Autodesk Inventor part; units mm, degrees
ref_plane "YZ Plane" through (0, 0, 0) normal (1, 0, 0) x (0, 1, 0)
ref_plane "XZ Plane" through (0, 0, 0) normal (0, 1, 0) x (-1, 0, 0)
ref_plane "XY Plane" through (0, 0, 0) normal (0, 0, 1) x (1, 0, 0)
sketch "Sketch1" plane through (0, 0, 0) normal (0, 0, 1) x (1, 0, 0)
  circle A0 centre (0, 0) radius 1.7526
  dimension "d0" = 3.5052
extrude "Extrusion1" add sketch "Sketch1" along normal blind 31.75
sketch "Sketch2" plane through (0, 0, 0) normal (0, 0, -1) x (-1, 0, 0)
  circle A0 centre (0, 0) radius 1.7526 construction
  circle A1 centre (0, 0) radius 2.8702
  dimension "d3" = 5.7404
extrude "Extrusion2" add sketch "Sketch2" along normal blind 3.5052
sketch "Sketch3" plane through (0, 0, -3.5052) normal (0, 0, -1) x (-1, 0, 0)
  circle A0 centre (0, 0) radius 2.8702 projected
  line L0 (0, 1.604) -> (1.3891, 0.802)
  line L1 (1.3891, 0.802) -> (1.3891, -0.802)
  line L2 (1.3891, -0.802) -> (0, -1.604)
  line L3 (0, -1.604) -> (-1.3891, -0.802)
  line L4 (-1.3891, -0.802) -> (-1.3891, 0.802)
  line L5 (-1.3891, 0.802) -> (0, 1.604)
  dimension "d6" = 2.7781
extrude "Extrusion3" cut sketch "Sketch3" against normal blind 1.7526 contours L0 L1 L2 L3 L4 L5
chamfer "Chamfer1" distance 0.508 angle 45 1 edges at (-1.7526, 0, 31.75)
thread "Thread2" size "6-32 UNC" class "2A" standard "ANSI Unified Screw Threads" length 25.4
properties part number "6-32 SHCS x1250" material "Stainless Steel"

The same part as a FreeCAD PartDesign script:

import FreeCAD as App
import Part
import Sketcher

V = App.Vector
Q = App.Units.Quantity


def edges_at(feature, points):
    """Names of the edges that pass closest to the given points."""
    edges = feature.Shape.Edges
    near = lambda p: min(range(len(edges)), key=lambda i: edges[i].distToShape(Part.Vertex(*p))[0])
    return sorted({f"Edge{near(p) + 1}" for p in points})

doc = App.newDocument("Part")
body = doc.addObject("PartDesign::Body", "Body")

# Sketch on XY plane
sketch1 = body.newObject("Sketcher::SketchObject", "Sketch")
sketch1.AttachmentSupport = (doc.getObject("XY_Plane"), [""])
sketch1.MapMode = "FlatFace"
sketch1.addGeometry(Part.Circle(V(0, 0, 0), V(0, 0, 1), 1.8), False)
sketch1.addConstraint([
    Sketcher.Constraint("Coincident", 0, 3, -1, 1),
    Sketcher.Constraint("Diameter", 0, Q("0.138 in")),
])
pad1 = body.newObject("PartDesign::Pad", "Pad")
pad1.Profile = sketch1
pad1.Length = Q("1.25 in")

# Sketch on XY plane
sketch2 = body.newObject("Sketcher::SketchObject", "Sketch001")
sketch2.AttachmentSupport = (doc.getObject("XY_Plane"), [""])
sketch2.MapMode = "FlatFace"
sketch2.addGeometry(Part.Circle(V(0, 0, 0), V(0, 0, 1), 2.9), False)
sketch2.addConstraint([
    Sketcher.Constraint("Coincident", 0, 3, -1, 1),
    Sketcher.Constraint("Diameter", 0, Q("0.226 in")),
])
pad2 = body.newObject("PartDesign::Pad", "Pad001")
pad2.Profile = sketch2
pad2.Length = Q("0.138 in")
pad2.Reversed = True

# Sketch on XY plane
sketch3 = body.newObject("Sketcher::SketchObject", "Sketch002")
sketch3.AttachmentSupport = (doc.getObject("XY_Plane"), [""])
sketch3.MapMode = "FlatFace"
sketch3.AttachmentOffset = App.Placement(V(0, 0, -0.138 * 25.4), App.Rotation())
sketch3.addGeometry([
    Part.LineSegment(V(-1.4, 0.8, 0), V(0, 1.6, 0)),  # 0
    Part.LineSegment(V(0, 1.6, 0), V(1.4, 0.8, 0)),  # 1
    Part.LineSegment(V(1.4, 0.8, 0), V(1.4, -0.8, 0)),  # 2
    Part.LineSegment(V(1.4, -0.8, 0), V(0, -1.6, 0)),  # 3
    Part.LineSegment(V(0, -1.6, 0), V(-1.4, -0.8, 0)),  # 4
    Part.LineSegment(V(-1.4, -0.8, 0), V(-1.4, 0.8, 0)),  # 5
], False)
sketch3.addConstraint([
    Sketcher.Constraint("Coincident", 0, 2, 1, 1),
    Sketcher.Constraint("Coincident", 1, 2, 2, 1),
    Sketcher.Constraint("Coincident", 2, 2, 3, 1),
    Sketcher.Constraint("Coincident", 3, 2, 4, 1),
    Sketcher.Constraint("Coincident", 4, 2, 5, 1),
    Sketcher.Constraint("Coincident", 5, 2, 0, 1),
    Sketcher.Constraint("Vertical", 2),
    Sketcher.Constraint("Vertical", 5),
    Sketcher.Constraint("Symmetric", 0, 2, 3, 2, -1, 1),
    Sketcher.Constraint("Symmetric", 1, 2, 4, 2, -1, 1),
    Sketcher.Constraint("PointOnObject", 0, 2, -2),
    Sketcher.Constraint("Parallel", 0, 3),
    Sketcher.Constraint("Horizontal", 2, 2, 4, 2),
    Sketcher.Constraint("Angle", 0, Q("30 deg")),
    Sketcher.Constraint("DistanceX", 4, 2, 2, 2, Q("0.109378 in")),
    Sketcher.Constraint("DistanceY", 2, 2, 2, 1, Q("1.604 mm")),
])
pocket1 = body.newObject("PartDesign::Pocket", "Pocket")
pocket1.Profile = sketch3
pocket1.Length = Q("0.069 in")
pocket1.Reversed = True
doc.recompute()

chamfer = body.newObject("PartDesign::Chamfer", "Chamfer")
chamfer.Base = (pocket1, edges_at(pocket1, [(-1.753, 0, 31.75)]))
chamfer.Size = Q("0.02 in")

doc.recompute()
